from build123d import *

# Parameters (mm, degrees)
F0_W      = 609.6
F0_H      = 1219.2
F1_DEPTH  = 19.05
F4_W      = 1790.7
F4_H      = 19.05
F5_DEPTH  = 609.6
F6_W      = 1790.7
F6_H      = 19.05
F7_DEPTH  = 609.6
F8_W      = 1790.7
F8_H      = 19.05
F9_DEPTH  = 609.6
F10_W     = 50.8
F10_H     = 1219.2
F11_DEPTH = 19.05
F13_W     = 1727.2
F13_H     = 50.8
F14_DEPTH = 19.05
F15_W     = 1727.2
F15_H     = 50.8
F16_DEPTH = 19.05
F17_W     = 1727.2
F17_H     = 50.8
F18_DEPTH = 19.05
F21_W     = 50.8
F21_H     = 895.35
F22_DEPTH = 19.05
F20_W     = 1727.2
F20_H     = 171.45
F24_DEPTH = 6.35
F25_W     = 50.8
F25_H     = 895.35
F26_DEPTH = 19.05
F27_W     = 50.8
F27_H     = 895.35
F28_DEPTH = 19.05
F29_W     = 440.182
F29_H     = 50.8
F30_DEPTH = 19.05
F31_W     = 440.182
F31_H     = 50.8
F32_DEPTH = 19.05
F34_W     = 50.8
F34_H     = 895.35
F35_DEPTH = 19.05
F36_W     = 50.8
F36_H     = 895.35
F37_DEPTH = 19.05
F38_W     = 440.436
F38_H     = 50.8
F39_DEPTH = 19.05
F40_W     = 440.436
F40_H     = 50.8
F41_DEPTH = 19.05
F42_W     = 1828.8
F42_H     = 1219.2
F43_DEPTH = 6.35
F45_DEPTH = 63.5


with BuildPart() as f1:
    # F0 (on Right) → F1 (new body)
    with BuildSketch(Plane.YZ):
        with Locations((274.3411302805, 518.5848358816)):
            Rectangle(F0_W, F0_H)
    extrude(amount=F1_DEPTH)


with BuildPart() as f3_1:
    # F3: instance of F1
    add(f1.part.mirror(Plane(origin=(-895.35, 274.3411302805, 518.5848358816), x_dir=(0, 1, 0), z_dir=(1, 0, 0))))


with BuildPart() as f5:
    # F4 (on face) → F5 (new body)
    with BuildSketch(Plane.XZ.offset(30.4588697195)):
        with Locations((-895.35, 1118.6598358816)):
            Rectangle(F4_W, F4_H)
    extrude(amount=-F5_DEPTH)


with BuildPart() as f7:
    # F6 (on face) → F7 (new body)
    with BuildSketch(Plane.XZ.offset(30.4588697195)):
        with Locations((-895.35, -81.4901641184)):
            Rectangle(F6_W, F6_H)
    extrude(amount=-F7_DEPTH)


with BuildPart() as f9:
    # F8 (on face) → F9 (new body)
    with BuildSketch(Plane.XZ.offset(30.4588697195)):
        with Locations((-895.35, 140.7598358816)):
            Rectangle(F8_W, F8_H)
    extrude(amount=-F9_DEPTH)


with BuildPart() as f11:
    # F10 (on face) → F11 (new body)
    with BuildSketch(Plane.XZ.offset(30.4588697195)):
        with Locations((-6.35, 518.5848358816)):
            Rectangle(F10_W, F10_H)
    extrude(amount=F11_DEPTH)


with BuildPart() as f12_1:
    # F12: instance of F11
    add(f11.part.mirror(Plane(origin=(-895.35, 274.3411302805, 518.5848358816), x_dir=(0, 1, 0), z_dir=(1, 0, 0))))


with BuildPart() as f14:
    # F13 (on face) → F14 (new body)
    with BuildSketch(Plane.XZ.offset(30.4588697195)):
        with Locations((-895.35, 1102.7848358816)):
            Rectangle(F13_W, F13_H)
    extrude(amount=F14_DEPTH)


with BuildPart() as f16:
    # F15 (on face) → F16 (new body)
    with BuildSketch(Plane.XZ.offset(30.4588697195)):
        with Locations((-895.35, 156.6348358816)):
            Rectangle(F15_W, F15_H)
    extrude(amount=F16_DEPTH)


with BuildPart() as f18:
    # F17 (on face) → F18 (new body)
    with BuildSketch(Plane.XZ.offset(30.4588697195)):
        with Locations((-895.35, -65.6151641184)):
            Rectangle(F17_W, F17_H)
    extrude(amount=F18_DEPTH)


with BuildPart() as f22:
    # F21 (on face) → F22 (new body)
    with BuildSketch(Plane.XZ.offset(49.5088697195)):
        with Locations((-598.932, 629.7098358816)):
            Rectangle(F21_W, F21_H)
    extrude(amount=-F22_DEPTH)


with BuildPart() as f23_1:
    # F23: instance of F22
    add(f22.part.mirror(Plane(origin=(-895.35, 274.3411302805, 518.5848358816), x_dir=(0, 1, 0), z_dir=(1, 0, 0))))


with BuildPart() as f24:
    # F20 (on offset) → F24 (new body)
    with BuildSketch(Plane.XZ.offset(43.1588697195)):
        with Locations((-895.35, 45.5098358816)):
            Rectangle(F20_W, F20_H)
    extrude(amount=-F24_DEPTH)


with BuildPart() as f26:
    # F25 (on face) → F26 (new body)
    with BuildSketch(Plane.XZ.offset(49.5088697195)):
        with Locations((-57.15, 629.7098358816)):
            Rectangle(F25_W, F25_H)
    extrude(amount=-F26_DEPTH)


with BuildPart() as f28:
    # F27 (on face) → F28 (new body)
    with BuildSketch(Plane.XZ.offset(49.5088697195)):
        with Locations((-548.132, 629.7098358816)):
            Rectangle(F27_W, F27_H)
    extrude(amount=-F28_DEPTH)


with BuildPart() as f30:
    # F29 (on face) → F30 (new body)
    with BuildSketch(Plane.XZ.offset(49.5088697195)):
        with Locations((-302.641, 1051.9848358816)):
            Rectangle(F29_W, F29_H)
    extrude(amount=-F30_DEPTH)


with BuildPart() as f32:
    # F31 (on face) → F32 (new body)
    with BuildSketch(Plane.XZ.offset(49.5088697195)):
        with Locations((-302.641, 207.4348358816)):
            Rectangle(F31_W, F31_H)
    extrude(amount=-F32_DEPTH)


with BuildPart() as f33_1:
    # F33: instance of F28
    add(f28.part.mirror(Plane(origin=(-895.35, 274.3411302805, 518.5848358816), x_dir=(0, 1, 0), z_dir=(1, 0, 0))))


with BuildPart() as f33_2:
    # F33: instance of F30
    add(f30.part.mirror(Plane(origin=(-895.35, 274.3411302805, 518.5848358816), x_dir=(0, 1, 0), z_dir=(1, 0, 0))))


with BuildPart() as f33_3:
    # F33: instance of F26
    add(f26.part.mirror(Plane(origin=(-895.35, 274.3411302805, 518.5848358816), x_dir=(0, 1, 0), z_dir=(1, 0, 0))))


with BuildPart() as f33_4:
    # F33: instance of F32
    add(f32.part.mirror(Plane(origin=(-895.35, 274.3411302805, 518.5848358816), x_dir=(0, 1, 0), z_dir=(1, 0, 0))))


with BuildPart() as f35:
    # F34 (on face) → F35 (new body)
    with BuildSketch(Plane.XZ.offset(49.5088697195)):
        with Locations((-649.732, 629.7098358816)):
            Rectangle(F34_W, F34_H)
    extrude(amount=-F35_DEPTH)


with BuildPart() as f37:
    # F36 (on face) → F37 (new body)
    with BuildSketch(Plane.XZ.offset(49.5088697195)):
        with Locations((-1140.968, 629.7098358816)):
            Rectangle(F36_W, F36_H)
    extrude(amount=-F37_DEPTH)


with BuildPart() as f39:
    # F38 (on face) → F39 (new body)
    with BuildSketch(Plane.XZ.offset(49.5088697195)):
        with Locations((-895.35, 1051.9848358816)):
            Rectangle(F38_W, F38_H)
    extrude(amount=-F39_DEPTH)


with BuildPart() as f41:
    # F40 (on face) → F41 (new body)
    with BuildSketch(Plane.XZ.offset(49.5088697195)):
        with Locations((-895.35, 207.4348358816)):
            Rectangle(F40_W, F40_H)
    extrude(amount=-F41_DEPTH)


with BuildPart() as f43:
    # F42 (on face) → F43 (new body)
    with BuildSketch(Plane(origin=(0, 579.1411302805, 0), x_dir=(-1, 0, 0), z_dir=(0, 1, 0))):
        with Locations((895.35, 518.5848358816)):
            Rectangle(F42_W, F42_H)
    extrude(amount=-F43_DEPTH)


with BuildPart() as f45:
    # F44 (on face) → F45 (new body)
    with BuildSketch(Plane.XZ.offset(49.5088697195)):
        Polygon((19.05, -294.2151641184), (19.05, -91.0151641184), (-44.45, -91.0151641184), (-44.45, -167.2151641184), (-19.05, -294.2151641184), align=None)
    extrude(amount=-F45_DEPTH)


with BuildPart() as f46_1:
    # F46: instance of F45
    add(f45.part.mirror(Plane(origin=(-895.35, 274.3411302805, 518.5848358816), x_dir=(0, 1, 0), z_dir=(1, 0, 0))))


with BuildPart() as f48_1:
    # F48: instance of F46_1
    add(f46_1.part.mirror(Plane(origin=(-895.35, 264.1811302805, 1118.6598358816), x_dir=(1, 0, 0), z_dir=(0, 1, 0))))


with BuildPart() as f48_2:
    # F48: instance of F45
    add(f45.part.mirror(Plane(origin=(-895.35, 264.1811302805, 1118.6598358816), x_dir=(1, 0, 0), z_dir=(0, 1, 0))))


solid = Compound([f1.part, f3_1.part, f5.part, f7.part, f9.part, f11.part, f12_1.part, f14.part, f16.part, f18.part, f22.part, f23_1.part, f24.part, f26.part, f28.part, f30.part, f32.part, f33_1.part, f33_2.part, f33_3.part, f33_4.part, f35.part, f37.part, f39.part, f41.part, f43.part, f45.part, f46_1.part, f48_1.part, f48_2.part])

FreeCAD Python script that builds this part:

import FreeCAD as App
import Part
import Sketcher
Q = App.Units.Quantity

doc = App.newDocument("Part")
body = doc.addObject("PartDesign::Body", "Body")

sketch1 = body.newObject("Sketcher::SketchObject", "Sketch")
sketch1.AttachmentSupport = (doc.getObject("YZ_Plane"), [""])
sketch1.MapMode = "FlatFace"
sketch1.addGeometry([
    Part.LineSegment(App.Vector(-30, 1128, 0), App.Vector(-30, -91, 0)),
    Part.LineSegment(App.Vector(-30, -91, 0), App.Vector(579, -91, 0)),
    Part.LineSegment(App.Vector(579, -91, 0), App.Vector(579, 1128, 0)),
    Part.LineSegment(App.Vector(579, 1128, 0), App.Vector(-30, 1128, 0)),
], False)
sketch1.addConstraint([
    Sketcher.Constraint("Coincident", 0, 2, 1, 1),
    Sketcher.Constraint("Coincident", 1, 2, 2, 1),
    Sketcher.Constraint("Coincident", 2, 2, 3, 1),
    Sketcher.Constraint("Coincident", 3, 2, 0, 1),
    Sketcher.Constraint("Vertical", 0),
    Sketcher.Constraint("Horizontal", 1),
    Sketcher.Constraint("Vertical", 2),
    Sketcher.Constraint("Horizontal", 3),
    Sketcher.Constraint("DistanceX", 1, 1, 1, 2, Q("24 in")),
    Sketcher.Constraint("DistanceY", 0, 2, 0, 1, Q("48 in")),
    Sketcher.Constraint("DistanceX", 0, 2, -1, 1, 30.45887),
    Sketcher.Constraint("DistanceY", 0, 2, -1, 1, 91.015164),
])
pad1 = body.newObject("PartDesign::Pad", "Pad")
pad1.Profile = sketch1
pad1.Length = Q("0.75 in")
body2 = doc.addObject("PartDesign::Body", "Body001")
doc.recompute()

mirroring = doc.addObject("Part::Mirroring", "Mirroring")
mirroring.Source = body
mirroring.Base = App.Vector(-895.35, 274.34113, 518.584836)
mirroring.Normal = App.Vector(1, 0, 0)
body2.BaseFeature = mirroring
doc.recompute()
body3 = doc.addObject("PartDesign::Body", "Body002")

sketch2 = body3.newObject("Sketcher::SketchObject", "Sketch001")
sketch2.AttachmentSupport = (doc.getObject("XZ_Plane002"), [""])
sketch2.MapMode = "FlatFace"
sketch2.AttachmentOffset = App.Placement(App.Vector(0, 0, 30.45887), App.Rotation())
sketch2.addGeometry([
    Part.LineSegment(App.Vector(-1791, 1128, 0), App.Vector(-1791, 1109, 0)),
    Part.LineSegment(App.Vector(-1791, 1109, 0), App.Vector(0, 1109, 0)),
    Part.LineSegment(App.Vector(0, 1109, 0), App.Vector(0, 1128, 0)),
    Part.LineSegment(App.Vector(0, 1128, 0), App.Vector(-1791, 1128, 0)),
], False)
sketch2.addConstraint([
    Sketcher.Constraint("Coincident", 0, 2, 1, 1),
    Sketcher.Constraint("Coincident", 1, 2, 2, 1),
    Sketcher.Constraint("Coincident", 2, 2, 3, 1),
    Sketcher.Constraint("Coincident", 3, 2, 0, 1),
    Sketcher.Constraint("Vertical", 0),
    Sketcher.Constraint("Horizontal", 1),
    Sketcher.Constraint("Vertical", 2),
    Sketcher.Constraint("Horizontal", 3),
    Sketcher.Constraint("PointOnObject", 1, 2, -2),
    Sketcher.Constraint("DistanceX", 1, 1, 1, 2, Q("70.5 in")),
    Sketcher.Constraint("DistanceY", 0, 2, 0, 1, Q("0.75 in")),
    Sketcher.Constraint("DistanceY", -1, 1, 0, 2, 1109.134836),
])
pad2 = body3.newObject("PartDesign::Pad", "Pad001")
pad2.Profile = sketch2
pad2.Length = Q("24 in")
pad2.Reversed = True
body4 = doc.addObject("PartDesign::Body", "Body003")

sketch3 = body4.newObject("Sketcher::SketchObject", "Sketch002")
sketch3.AttachmentSupport = (doc.getObject("XZ_Plane003"), [""])
sketch3.MapMode = "FlatFace"
sketch3.AttachmentOffset = App.Placement(App.Vector(0, 0, 30.45887), App.Rotation())
sketch3.addGeometry([
    Part.LineSegment(App.Vector(-1791, -72, 0), App.Vector(-1791, -91, 0)),
    Part.LineSegment(App.Vector(-1791, -91, 0), App.Vector(0, -91, 0)),
    Part.LineSegment(App.Vector(0, -91, 0), App.Vector(0, -72, 0)),
    Part.LineSegment(App.Vector(0, -72, 0), App.Vector(-1791, -72, 0)),
], False)
sketch3.addConstraint([
    Sketcher.Constraint("Coincident", 0, 2, 1, 1),
    Sketcher.Constraint("Coincident", 1, 2, 2, 1),
    Sketcher.Constraint("Coincident", 2, 2, 3, 1),
    Sketcher.Constraint("Coincident", 3, 2, 0, 1),
    Sketcher.Constraint("Vertical", 0),
    Sketcher.Constraint("Horizontal", 1),
    Sketcher.Constraint("Vertical", 2),
    Sketcher.Constraint("Horizontal", 3),
    Sketcher.Constraint("PointOnObject", 1, 2, -2),
    Sketcher.Constraint("DistanceX", 1, 1, 1, 2, Q("70.5 in")),
    Sketcher.Constraint("DistanceY", 0, 2, 0, 1, Q("0.75 in")),
    Sketcher.Constraint("DistanceY", 0, 2, -1, 1, 91.015164),
])
pad3 = body4.newObject("PartDesign::Pad", "Pad002")
pad3.Profile = sketch3
pad3.Length = Q("24 in")
pad3.Reversed = True
body5 = doc.addObject("PartDesign::Body", "Body004")

sketch4 = body5.newObject("Sketcher::SketchObject", "Sketch003")
sketch4.AttachmentSupport = (doc.getObject("XZ_Plane004"), [""])
sketch4.MapMode = "FlatFace"
sketch4.AttachmentOffset = App.Placement(App.Vector(0, 0, 30.45887), App.Rotation())
sketch4.addGeometry([
    Part.LineSegment(App.Vector(-1791, 150, 0), App.Vector(-1791, 131, 0)),
    Part.LineSegment(App.Vector(-1791, 131, 0), App.Vector(0, 131, 0)),
    Part.LineSegment(App.Vector(0, 131, 0), App.Vector(0, 150, 0)),
    Part.LineSegment(App.Vector(0, 150, 0), App.Vector(-1791, 150, 0)),
], False)
sketch4.addConstraint([
    Sketcher.Constraint("Coincident", 0, 2, 1, 1),
    Sketcher.Constraint("Coincident", 1, 2, 2, 1),
    Sketcher.Constraint("Coincident", 2, 2, 3, 1),
    Sketcher.Constraint("Coincident", 3, 2, 0, 1),
    Sketcher.Constraint("Vertical", 0),
    Sketcher.Constraint("Horizontal", 1),
    Sketcher.Constraint("Vertical", 2),
    Sketcher.Constraint("Horizontal", 3),
    Sketcher.Constraint("PointOnObject", 1, 2, -2),
    Sketcher.Constraint("DistanceX", 1, 1, 1, 2, Q("70.5 in")),
    Sketcher.Constraint("DistanceY", 0, 2, 0, 1, Q("0.75 in")),
    Sketcher.Constraint("DistanceY", -1, 1, 0, 2, 131.234836),
])
pad4 = body5.newObject("PartDesign::Pad", "Pad003")
pad4.Profile = sketch4
pad4.Length = Q("24 in")
pad4.Reversed = True
body6 = doc.addObject("PartDesign::Body", "Body005")

sketch5 = body6.newObject("Sketcher::SketchObject", "Sketch004")
sketch5.AttachmentSupport = (doc.getObject("XZ_Plane005"), [""])
sketch5.MapMode = "FlatFace"
sketch5.AttachmentOffset = App.Placement(App.Vector(0, 0, 30.45887), App.Rotation())
sketch5.addGeometry([
    Part.LineSegment(App.Vector(-32, 1128, 0), App.Vector(-32, -91, 0)),
    Part.LineSegment(App.Vector(-32, -91, 0), App.Vector(19, -91, 0)),
    Part.LineSegment(App.Vector(19, -91, 0), App.Vector(19, 1128, 0)),
    Part.LineSegment(App.Vector(19, 1128, 0), App.Vector(-32, 1128, 0)),
], False)
sketch5.addConstraint([
    Sketcher.Constraint("Coincident", 0, 2, 1, 1),
    Sketcher.Constraint("Coincident", 1, 2, 2, 1),
    Sketcher.Constraint("Coincident", 2, 2, 3, 1),
    Sketcher.Constraint("Coincident", 3, 2, 0, 1),
    Sketcher.Constraint("Vertical", 0),
    Sketcher.Constraint("Horizontal", 1),
    Sketcher.Constraint("Vertical", 2),
    Sketcher.Constraint("Horizontal", 3),
    Sketcher.Constraint("DistanceX", 1, 1, 1, 2, Q("2 in")),
    Sketcher.Constraint("DistanceY", 0, 2, 0, 1, Q("48 in")),
    Sketcher.Constraint("DistanceX", 0, 2, -1, 1, Q("1.25 in")),
    Sketcher.Constraint("DistanceY", 0, 2, -1, 1, 91.015164),
])
pad5 = body6.newObject("PartDesign::Pad", "Pad004")
pad5.Profile = sketch5
pad5.Length = Q("0.75 in")
body7 = doc.addObject("PartDesign::Body", "Body006")
doc.recompute()

mirroring2 = doc.addObject("Part::Mirroring", "Mirroring001")
mirroring2.Source = body6
mirroring2.Base = App.Vector(-895.35, 274.34113, 518.584836)
mirroring2.Normal = App.Vector(1, 0, 0)
body7.BaseFeature = mirroring2
doc.recompute()
body8 = doc.addObject("PartDesign::Body", "Body007")

sketch6 = body8.newObject("Sketcher::SketchObject", "Sketch005")
sketch6.AttachmentSupport = (doc.getObject("XZ_Plane007"), [""])
sketch6.MapMode = "FlatFace"
sketch6.AttachmentOffset = App.Placement(App.Vector(0, 0, 30.45887), App.Rotation())
sketch6.addGeometry([
    Part.LineSegment(App.Vector(-1759, 1128, 0), App.Vector(-1759, 1077, 0)),
    Part.LineSegment(App.Vector(-1759, 1077, 0), App.Vector(-32, 1077, 0)),
    Part.LineSegment(App.Vector(-32, 1077, 0), App.Vector(-32, 1128, 0)),
    Part.LineSegment(App.Vector(-32, 1128, 0), App.Vector(-1759, 1128, 0)),
], False)
sketch6.addConstraint([
    Sketcher.Constraint("Coincident", 0, 2, 1, 1),
    Sketcher.Constraint("Coincident", 1, 2, 2, 1),
    Sketcher.Constraint("Coincident", 2, 2, 3, 1),
    Sketcher.Constraint("Coincident", 3, 2, 0, 1),
    Sketcher.Constraint("Vertical", 0),
    Sketcher.Constraint("Horizontal", 1),
    Sketcher.Constraint("Vertical", 2),
    Sketcher.Constraint("Horizontal", 3),
    Sketcher.Constraint("DistanceX", 1, 1, 1, 2, Q("68 in")),
    Sketcher.Constraint("DistanceY", 0, 2, 0, 1, Q("2 in")),
    Sketcher.Constraint("DistanceX", 0, 2, -1, 1, Q("69.25 in")),
    Sketcher.Constraint("DistanceY", -1, 1, 0, 2, 1077.384836),
])
pad6 = body8.newObject("PartDesign::Pad", "Pad005")
pad6.Profile = sketch6
pad6.Length = Q("0.75 in")
body9 = doc.addObject("PartDesign::Body", "Body008")

sketch7 = body9.newObject("Sketcher::SketchObject", "Sketch006")
sketch7.AttachmentSupport = (doc.getObject("XZ_Plane008"), [""])
sketch7.MapMode = "FlatFace"
sketch7.AttachmentOffset = App.Placement(App.Vector(0, 0, 30.45887), App.Rotation())
sketch7.addGeometry([
    Part.LineSegment(App.Vector(-1759, 182, 0), App.Vector(-1759, 131, 0)),
    Part.LineSegment(App.Vector(-1759, 131, 0), App.Vector(-32, 131, 0)),
    Part.LineSegment(App.Vector(-32, 131, 0), App.Vector(-32, 182, 0)),
    Part.LineSegment(App.Vector(-32, 182, 0), App.Vector(-1759, 182, 0)),
], False)
sketch7.addConstraint([
    Sketcher.Constraint("Coincident", 0, 2, 1, 1),
    Sketcher.Constraint("Coincident", 1, 2, 2, 1),
    Sketcher.Constraint("Coincident", 2, 2, 3, 1),
    Sketcher.Constraint("Coincident", 3, 2, 0, 1),
    Sketcher.Constraint("Vertical", 0),
    Sketcher.Constraint("Horizontal", 1),
    Sketcher.Constraint("Vertical", 2),
    Sketcher.Constraint("Horizontal", 3),
    Sketcher.Constraint("DistanceX", 1, 1, 1, 2, Q("68 in")),
    Sketcher.Constraint("DistanceY", 0, 2, 0, 1, Q("2 in")),
    Sketcher.Constraint("DistanceX", 0, 2, -1, 1, Q("69.25 in")),
    Sketcher.Constraint("DistanceY", -1, 1, 0, 2, 131.234836),
])
pad7 = body9.newObject("PartDesign::Pad", "Pad006")
pad7.Profile = sketch7
pad7.Length = Q("0.75 in")
body10 = doc.addObject("PartDesign::Body", "Body009")

sketch8 = body10.newObject("Sketcher::SketchObject", "Sketch007")
sketch8.AttachmentSupport = (doc.getObject("XZ_Plane009"), [""])
sketch8.MapMode = "FlatFace"
sketch8.AttachmentOffset = App.Placement(App.Vector(0, 0, 30.45887), App.Rotation())
sketch8.addGeometry([
    Part.LineSegment(App.Vector(-1759, -40, 0), App.Vector(-1759, -91, 0)),
    Part.LineSegment(App.Vector(-1759, -91, 0), App.Vector(-32, -91, 0)),
    Part.LineSegment(App.Vector(-32, -91, 0), App.Vector(-32, -40, 0)),
    Part.LineSegment(App.Vector(-32, -40, 0), App.Vector(-1759, -40, 0)),
], False)
sketch8.addConstraint([
    Sketcher.Constraint("Coincident", 0, 2, 1, 1),
    Sketcher.Constraint("Coincident", 1, 2, 2, 1),
    Sketcher.Constraint("Coincident", 2, 2, 3, 1),
    Sketcher.Constraint("Coincident", 3, 2, 0, 1),
    Sketcher.Constraint("Vertical", 0),
    Sketcher.Constraint("Horizontal", 1),
    Sketcher.Constraint("Vertical", 2),
    Sketcher.Constraint("Horizontal", 3),
    Sketcher.Constraint("DistanceX", 1, 1, 1, 2, Q("68 in")),
    Sketcher.Constraint("DistanceY", 0, 2, 0, 1, Q("2 in")),
    Sketcher.Constraint("DistanceX", 0, 2, -1, 1, Q("69.25 in")),
    Sketcher.Constraint("DistanceY", 0, 2, -1, 1, 91.015164),
])
pad8 = body10.newObject("PartDesign::Pad", "Pad007")
pad8.Profile = sketch8
pad8.Length = Q("0.75 in")
body11 = doc.addObject("PartDesign::Body", "Body010")

sketch9 = body11.newObject("Sketcher::SketchObject", "Sketch008")
sketch9.AttachmentSupport = (doc.getObject("XZ_Plane010"), [""])
sketch9.MapMode = "FlatFace"
sketch9.AttachmentOffset = App.Placement(App.Vector(0, 0, 49.50887), App.Rotation())
sketch9.addGeometry([
    Part.LineSegment(App.Vector(-624, 1077, 0), App.Vector(-624, 182, 0)),
    Part.LineSegment(App.Vector(-624, 182, 0), App.Vector(-574, 182, 0)),
    Part.LineSegment(App.Vector(-574, 182, 0), App.Vector(-574, 1077, 0)),
    Part.LineSegment(App.Vector(-574, 1077, 0), App.Vector(-624, 1077, 0)),
], False)
sketch9.addConstraint([
    Sketcher.Constraint("Coincident", 0, 2, 1, 1),
    Sketcher.Constraint("Coincident", 1, 2, 2, 1),
    Sketcher.Constraint("Coincident", 2, 2, 3, 1),
    Sketcher.Constraint("Coincident", 3, 2, 0, 1),
    Sketcher.Constraint("Vertical", 0),
    Sketcher.Constraint("Horizontal", 1),
    Sketcher.Constraint("Vertical", 2),
    Sketcher.Constraint("Horizontal", 3),
    Sketcher.Constraint("DistanceX", 1, 1, 1, 2, Q("2 in")),
    Sketcher.Constraint("DistanceY", 0, 2, 0, 1, Q("35.25 in")),
    Sketcher.Constraint("DistanceX", 0, 2, -1, 1, Q("24.58 in")),
    Sketcher.Constraint("DistanceY", -1, 1, 0, 2, 182.034836),
])
pad9 = body11.newObject("PartDesign::Pad", "Pad008")
pad9.Profile = sketch9
pad9.Length = Q("0.75 in")
pad9.Reversed = True
body12 = doc.addObject("PartDesign::Body", "Body011")
doc.recompute()

mirroring3 = doc.addObject("Part::Mirroring", "Mirroring002")
mirroring3.Source = body11
mirroring3.Base = App.Vector(-895.35, 274.34113, 518.584836)
mirroring3.Normal = App.Vector(1, 0, 0)
body12.BaseFeature = mirroring3
doc.recompute()
body13 = doc.addObject("PartDesign::Body", "Body012")

sketch10 = body13.newObject("Sketcher::SketchObject", "Sketch009")
sketch10.AttachmentSupport = (doc.getObject("XZ_Plane012"), [""])
sketch10.MapMode = "FlatFace"
sketch10.AttachmentOffset = App.Placement(App.Vector(0, 0, 43.15887), App.Rotation())
sketch10.addGeometry([
    Part.LineSegment(App.Vector(-1759, 131, 0), App.Vector(-1759, -40, 0)),
    Part.LineSegment(App.Vector(-1759, -40, 0), App.Vector(-32, -40, 0)),
    Part.LineSegment(App.Vector(-32, -40, 0), App.Vector(-32, 131, 0)),
    Part.LineSegment(App.Vector(-32, 131, 0), App.Vector(-1759, 131, 0)),
], False)
sketch10.addConstraint([
    Sketcher.Constraint("Coincident", 0, 2, 1, 1),
    Sketcher.Constraint("Coincident", 1, 2, 2, 1),
    Sketcher.Constraint("Coincident", 2, 2, 3, 1),
    Sketcher.Constraint("Coincident", 3, 2, 0, 1),
    Sketcher.Constraint("Vertical", 0),
    Sketcher.Constraint("Horizontal", 1),
    Sketcher.Constraint("Vertical", 2),
    Sketcher.Constraint("Horizontal", 3),
    Sketcher.Constraint("DistanceX", 1, 1, 1, 2, Q("68 in")),
    Sketcher.Constraint("DistanceY", 0, 2, 0, 1, Q("6.75 in")),
    Sketcher.Constraint("DistanceX", 0, 2, -1, 1, Q("69.25 in")),
    Sketcher.Constraint("DistanceY", 0, 2, -1, 1, 40.215164),
])
pad10 = body13.newObject("PartDesign::Pad", "Pad009")
pad10.Profile = sketch10
pad10.Length = Q("0.25 in")
pad10.Reversed = True
body14 = doc.addObject("PartDesign::Body", "Body013")

sketch11 = body14.newObject("Sketcher::SketchObject", "Sketch010")
sketch11.AttachmentSupport = (doc.getObject("XZ_Plane013"), [""])
sketch11.MapMode = "FlatFace"
sketch11.AttachmentOffset = App.Placement(App.Vector(0, 0, 49.50887), App.Rotation())
sketch11.addGeometry([
    Part.LineSegment(App.Vector(-83, 1077, 0), App.Vector(-83, 182, 0)),
    Part.LineSegment(App.Vector(-83, 182, 0), App.Vector(-32, 182, 0)),
    Part.LineSegment(App.Vector(-32, 182, 0), App.Vector(-32, 1077, 0)),
    Part.LineSegment(App.Vector(-32, 1077, 0), App.Vector(-83, 1077, 0)),
], False)
sketch11.addConstraint([
    Sketcher.Constraint("Coincident", 0, 2, 1, 1),
    Sketcher.Constraint("Coincident", 1, 2, 2, 1),
    Sketcher.Constraint("Coincident", 2, 2, 3, 1),
    Sketcher.Constraint("Coincident", 3, 2, 0, 1),
    Sketcher.Constraint("Vertical", 0),
    Sketcher.Constraint("Horizontal", 1),
    Sketcher.Constraint("Vertical", 2),
    Sketcher.Constraint("Horizontal", 3),
    Sketcher.Constraint("DistanceX", 1, 1, 1, 2, Q("2 in")),
    Sketcher.Constraint("DistanceY", 0, 2, 0, 1, Q("35.25 in")),
    Sketcher.Constraint("DistanceX", 0, 2, -1, 1, Q("3.25 in")),
    Sketcher.Constraint("DistanceY", -1, 1, 0, 2, 182.034836),
])
pad11 = body14.newObject("PartDesign::Pad", "Pad010")
pad11.Profile = sketch11
pad11.Length = Q("0.75 in")
pad11.Reversed = True
body15 = doc.addObject("PartDesign::Body", "Body014")

sketch12 = body15.newObject("Sketcher::SketchObject", "Sketch011")
sketch12.AttachmentSupport = (doc.getObject("XZ_Plane014"), [""])
sketch12.MapMode = "FlatFace"
sketch12.AttachmentOffset = App.Placement(App.Vector(0, 0, 49.50887), App.Rotation())
sketch12.addGeometry([
    Part.LineSegment(App.Vector(-574, 1077, 0), App.Vector(-574, 182, 0)),
    Part.LineSegment(App.Vector(-574, 182, 0), App.Vector(-523, 182, 0)),
    Part.LineSegment(App.Vector(-523, 182, 0), App.Vector(-523, 1077, 0)),
    Part.LineSegment(App.Vector(-523, 1077, 0), App.Vector(-574, 1077, 0)),
], False)
sketch12.addConstraint([
    Sketcher.Constraint("Coincident", 0, 2, 1, 1),
    Sketcher.Constraint("Coincident", 1, 2, 2, 1),
    Sketcher.Constraint("Coincident", 2, 2, 3, 1),
    Sketcher.Constraint("Coincident", 3, 2, 0, 1),
    Sketcher.Constraint("Vertical", 0),
    Sketcher.Constraint("Horizontal", 1),
    Sketcher.Constraint("Vertical", 2),
    Sketcher.Constraint("Horizontal", 3),
    Sketcher.Constraint("DistanceX", 1, 1, 1, 2, Q("2 in")),
    Sketcher.Constraint("DistanceY", 0, 2, 0, 1, Q("35.25 in")),
    Sketcher.Constraint("DistanceX", 0, 2, -1, 1, Q("22.58 in")),
    Sketcher.Constraint("DistanceY", -1, 1, 0, 2, 182.034836),
])
pad12 = body15.newObject("PartDesign::Pad", "Pad011")
pad12.Profile = sketch12
pad12.Length = Q("0.75 in")
pad12.Reversed = True
body16 = doc.addObject("PartDesign::Body", "Body015")

sketch13 = body16.newObject("Sketcher::SketchObject", "Sketch012")
sketch13.AttachmentSupport = (doc.getObject("XZ_Plane015"), [""])
sketch13.MapMode = "FlatFace"
sketch13.AttachmentOffset = App.Placement(App.Vector(0, 0, 49.50887), App.Rotation())
sketch13.addGeometry([
    Part.LineSegment(App.Vector(-523, 1077, 0), App.Vector(-523, 1027, 0)),
    Part.LineSegment(App.Vector(-523, 1027, 0), App.Vector(-83, 1027, 0)),
    Part.LineSegment(App.Vector(-83, 1027, 0), App.Vector(-83, 1077, 0)),
    Part.LineSegment(App.Vector(-83, 1077, 0), App.Vector(-523, 1077, 0)),
], False)
sketch13.addConstraint([
    Sketcher.Constraint("Coincident", 0, 2, 1, 1),
    Sketcher.Constraint("Coincident", 1, 2, 2, 1),
    Sketcher.Constraint("Coincident", 2, 2, 3, 1),
    Sketcher.Constraint("Coincident", 3, 2, 0, 1),
    Sketcher.Constraint("Vertical", 0),
    Sketcher.Constraint("Horizontal", 1),
    Sketcher.Constraint("Vertical", 2),
    Sketcher.Constraint("Horizontal", 3),
    Sketcher.Constraint("DistanceY", 0, 2, 0, 1, Q("2 in")),
    Sketcher.Constraint("DistanceX", 1, 1, 1, 2, Q("17.33 in")),
    Sketcher.Constraint("DistanceX", 0, 2, -1, 1, Q("20.58 in")),
    Sketcher.Constraint("DistanceY", -1, 1, 0, 2, 1026.584836),
])
pad13 = body16.newObject("PartDesign::Pad", "Pad012")
pad13.Profile = sketch13
pad13.Length = Q("0.75 in")
pad13.Reversed = True
body17 = doc.addObject("PartDesign::Body", "Body016")

sketch14 = body17.newObject("Sketcher::SketchObject", "Sketch013")
sketch14.AttachmentSupport = (doc.getObject("XZ_Plane016"), [""])
sketch14.MapMode = "FlatFace"
sketch14.AttachmentOffset = App.Placement(App.Vector(0, 0, 49.50887), App.Rotation())
sketch14.addGeometry([
    Part.LineSegment(App.Vector(-523, 233, 0), App.Vector(-523, 182, 0)),
    Part.LineSegment(App.Vector(-523, 182, 0), App.Vector(-83, 182, 0)),
    Part.LineSegment(App.Vector(-83, 182, 0), App.Vector(-83, 233, 0)),
    Part.LineSegment(App.Vector(-83, 233, 0), App.Vector(-523, 233, 0)),
], False)
sketch14.addConstraint([
    Sketcher.Constraint("Coincident", 0, 2, 1, 1),
    Sketcher.Constraint("Coincident", 1, 2, 2, 1),
    Sketcher.Constraint("Coincident", 2, 2, 3, 1),
    Sketcher.Constraint("Coincident", 3, 2, 0, 1),
    Sketcher.Constraint("Vertical", 0),
    Sketcher.Constraint("Horizontal", 1),
    Sketcher.Constraint("Vertical", 2),
    Sketcher.Constraint("Horizontal", 3),
    Sketcher.Constraint("DistanceY", 0, 2, 0, 1, Q("2 in")),
    Sketcher.Constraint("DistanceX", 1, 1, 1, 2, Q("17.33 in")),
    Sketcher.Constraint("DistanceX", 0, 2, -1, 1, Q("20.58 in")),
    Sketcher.Constraint("DistanceY", -1, 1, 0, 2, 182.034836),
])
pad14 = body17.newObject("PartDesign::Pad", "Pad013")
pad14.Profile = sketch14
pad14.Length = Q("0.75 in")
pad14.Reversed = True
body18 = doc.addObject("PartDesign::Body", "Body017")
doc.recompute()

mirroring4 = doc.addObject("Part::Mirroring", "Mirroring003")
mirroring4.Source = body15
mirroring4.Base = App.Vector(-895.35, 274.34113, 518.584836)
mirroring4.Normal = App.Vector(1, 0, 0)
body18.BaseFeature = mirroring4
doc.recompute()
body19 = doc.addObject("PartDesign::Body", "Body018")
doc.recompute()

mirroring5 = doc.addObject("Part::Mirroring", "Mirroring004")
mirroring5.Source = body16
mirroring5.Base = App.Vector(-895.35, 274.34113, 518.584836)
mirroring5.Normal = App.Vector(1, 0, 0)
body19.BaseFeature = mirroring5
doc.recompute()
body20 = doc.addObject("PartDesign::Body", "Body019")
doc.recompute()

mirroring6 = doc.addObject("Part::Mirroring", "Mirroring005")
mirroring6.Source = body14
mirroring6.Base = App.Vector(-895.35, 274.34113, 518.584836)
mirroring6.Normal = App.Vector(1, 0, 0)
body20.BaseFeature = mirroring6
doc.recompute()
body21 = doc.addObject("PartDesign::Body", "Body020")
doc.recompute()

mirroring7 = doc.addObject("Part::Mirroring", "Mirroring006")
mirroring7.Source = body17
mirroring7.Base = App.Vector(-895.35, 274.34113, 518.584836)
mirroring7.Normal = App.Vector(1, 0, 0)
body21.BaseFeature = mirroring7
doc.recompute()
body22 = doc.addObject("PartDesign::Body", "Body021")

sketch15 = body22.newObject("Sketcher::SketchObject", "Sketch014")
sketch15.AttachmentSupport = (doc.getObject("XZ_Plane021"), [""])
sketch15.MapMode = "FlatFace"
sketch15.AttachmentOffset = App.Placement(App.Vector(0, 0, 49.50887), App.Rotation())
sketch15.addGeometry([
    Part.LineSegment(App.Vector(-675, 1077, 0), App.Vector(-675, 182, 0)),
    Part.LineSegment(App.Vector(-675, 182, 0), App.Vector(-624, 182, 0)),
    Part.LineSegment(App.Vector(-624, 182, 0), App.Vector(-624, 1077, 0)),
    Part.LineSegment(App.Vector(-624, 1077, 0), App.Vector(-675, 1077, 0)),
], False)
sketch15.addConstraint([
    Sketcher.Constraint("Coincident", 0, 2, 1, 1),
    Sketcher.Constraint("Coincident", 1, 2, 2, 1),
    Sketcher.Constraint("Coincident", 2, 2, 3, 1),
    Sketcher.Constraint("Coincident", 3, 2, 0, 1),
    Sketcher.Constraint("Vertical", 0),
    Sketcher.Constraint("Horizontal", 1),
    Sketcher.Constraint("Vertical", 2),
    Sketcher.Constraint("Horizontal", 3),
    Sketcher.Constraint("DistanceX", 1, 1, 1, 2, Q("2 in")),
    Sketcher.Constraint("DistanceY", 0, 2, 0, 1, Q("35.25 in")),
    Sketcher.Constraint("DistanceX", 0, 2, -1, 1, Q("26.58 in")),
    Sketcher.Constraint("DistanceY", -1, 1, 0, 2, 182.034836),
])
pad15 = body22.newObject("PartDesign::Pad", "Pad014")
pad15.Profile = sketch15
pad15.Length = Q("0.75 in")
pad15.Reversed = True
body23 = doc.addObject("PartDesign::Body", "Body022")

sketch16 = body23.newObject("Sketcher::SketchObject", "Sketch015")
sketch16.AttachmentSupport = (doc.getObject("XZ_Plane022"), [""])
sketch16.MapMode = "FlatFace"
sketch16.AttachmentOffset = App.Placement(App.Vector(0, 0, 49.50887), App.Rotation())
sketch16.addGeometry([
    Part.LineSegment(App.Vector(-1166, 1077, 0), App.Vector(-1166, 182, 0)),
    Part.LineSegment(App.Vector(-1166, 182, 0), App.Vector(-1116, 182, 0)),
    Part.LineSegment(App.Vector(-1116, 182, 0), App.Vector(-1116, 1077, 0)),
    Part.LineSegment(App.Vector(-1116, 1077, 0), App.Vector(-1166, 1077, 0)),
], False)
sketch16.addConstraint([
    Sketcher.Constraint("Coincident", 0, 2, 1, 1),
    Sketcher.Constraint("Coincident", 1, 2, 2, 1),
    Sketcher.Constraint("Coincident", 2, 2, 3, 1),
    Sketcher.Constraint("Coincident", 3, 2, 0, 1),
    Sketcher.Constraint("Vertical", 0),
    Sketcher.Constraint("Horizontal", 1),
    Sketcher.Constraint("Vertical", 2),
    Sketcher.Constraint("Horizontal", 3),
    Sketcher.Constraint("DistanceX", 1, 1, 1, 2, Q("2 in")),
    Sketcher.Constraint("DistanceY", 0, 2, 0, 1, Q("35.25 in")),
    Sketcher.Constraint("DistanceX", 0, 2, -1, 1, Q("45.92 in")),
    Sketcher.Constraint("DistanceY", -1, 1, 0, 2, 182.034836),
])
pad16 = body23.newObject("PartDesign::Pad", "Pad015")
pad16.Profile = sketch16
pad16.Length = Q("0.75 in")
pad16.Reversed = True
body24 = doc.addObject("PartDesign::Body", "Body023")

sketch17 = body24.newObject("Sketcher::SketchObject", "Sketch016")
sketch17.AttachmentSupport = (doc.getObject("XZ_Plane023"), [""])
sketch17.MapMode = "FlatFace"
sketch17.AttachmentOffset = App.Placement(App.Vector(0, 0, 49.50887), App.Rotation())
sketch17.addGeometry([
    Part.LineSegment(App.Vector(-1116, 1077, 0), App.Vector(-1116, 1027, 0)),
    Part.LineSegment(App.Vector(-1116, 1027, 0), App.Vector(-675, 1027, 0)),
    Part.LineSegment(App.Vector(-675, 1027, 0), App.Vector(-675, 1077, 0)),
    Part.LineSegment(App.Vector(-675, 1077, 0), App.Vector(-1116, 1077, 0)),
], False)
sketch17.addConstraint([
    Sketcher.Constraint("Coincident", 0, 2, 1, 1),
    Sketcher.Constraint("Coincident", 1, 2, 2, 1),
    Sketcher.Constraint("Coincident", 2, 2, 3, 1),
    Sketcher.Constraint("Coincident", 3, 2, 0, 1),
    Sketcher.Constraint("Vertical", 0),
    Sketcher.Constraint("Horizontal", 1),
    Sketcher.Constraint("Vertical", 2),
    Sketcher.Constraint("Horizontal", 3),
    Sketcher.Constraint("DistanceY", 0, 2, 0, 1, Q("2 in")),
    Sketcher.Constraint("DistanceX", 1, 1, 1, 2, Q("17.34 in")),
    Sketcher.Constraint("DistanceX", 0, 2, -1, 1, Q("43.92 in")),
    Sketcher.Constraint("DistanceY", -1, 1, 0, 2, 1026.584836),
])
pad17 = body24.newObject("PartDesign::Pad", "Pad016")
pad17.Profile = sketch17
pad17.Length = Q("0.75 in")
pad17.Reversed = True
body25 = doc.addObject("PartDesign::Body", "Body024")

sketch18 = body25.newObject("Sketcher::SketchObject", "Sketch017")
sketch18.AttachmentSupport = (doc.getObject("XZ_Plane024"), [""])
sketch18.MapMode = "FlatFace"
sketch18.AttachmentOffset = App.Placement(App.Vector(0, 0, 49.50887), App.Rotation())
sketch18.addGeometry([
    Part.LineSegment(App.Vector(-1116, 233, 0), App.Vector(-1116, 182, 0)),
    Part.LineSegment(App.Vector(-1116, 182, 0), App.Vector(-675, 182, 0)),
    Part.LineSegment(App.Vector(-675, 182, 0), App.Vector(-675, 233, 0)),
    Part.LineSegment(App.Vector(-675, 233, 0), App.Vector(-1116, 233, 0)),
], False)
sketch18.addConstraint([
    Sketcher.Constraint("Coincident", 0, 2, 1, 1),
    Sketcher.Constraint("Coincident", 1, 2, 2, 1),
    Sketcher.Constraint("Coincident", 2, 2, 3, 1),
    Sketcher.Constraint("Coincident", 3, 2, 0, 1),
    Sketcher.Constraint("Vertical", 0),
    Sketcher.Constraint("Horizontal", 1),
    Sketcher.Constraint("Vertical", 2),
    Sketcher.Constraint("Horizontal", 3),
    Sketcher.Constraint("DistanceY", 0, 2, 0, 1, Q("2 in")),
    Sketcher.Constraint("DistanceX", 1, 1, 1, 2, Q("17.34 in")),
    Sketcher.Constraint("DistanceX", 0, 2, -1, 1, Q("43.92 in")),
    Sketcher.Constraint("DistanceY", -1, 1, 0, 2, 182.034836),
])
pad18 = body25.newObject("PartDesign::Pad", "Pad017")
pad18.Profile = sketch18
pad18.Length = Q("0.75 in")
pad18.Reversed = True
body26 = doc.addObject("PartDesign::Body", "Body025")

sketch19 = body26.newObject("Sketcher::SketchObject", "Sketch018")
sketch19.AttachmentSupport = (doc.getObject("XZ_Plane025"), [""])
sketch19.MapMode = "FlatFace"
sketch19.AttachmentOffset = App.Placement(App.Vector(0, 0, -579.14113), App.Rotation())
sketch19.addGeometry([
    Part.LineSegment(App.Vector(19, 1128, 0), App.Vector(19, -91, 0)),
    Part.LineSegment(App.Vector(19, -91, 0), App.Vector(-1810, -91, 0)),
    Part.LineSegment(App.Vector(-1810, -91, 0), App.Vector(-1810, 1128, 0)),
    Part.LineSegment(App.Vector(-1810, 1128, 0), App.Vector(19, 1128, 0)),
], False)
sketch19.addConstraint([
    Sketcher.Constraint("Coincident", 0, 2, 1, 1),
    Sketcher.Constraint("Coincident", 1, 2, 2, 1),
    Sketcher.Constraint("Coincident", 2, 2, 3, 1),
    Sketcher.Constraint("Coincident", 3, 2, 0, 1),
    Sketcher.Constraint("Vertical", 0),
    Sketcher.Constraint("Horizontal", 1),
    Sketcher.Constraint("Vertical", 2),
    Sketcher.Constraint("Horizontal", 3),
    Sketcher.Constraint("DistanceX", 1, 2, 1, 1, Q("72 in")),
    Sketcher.Constraint("DistanceY", 0, 2, 0, 1, Q("48 in")),
    Sketcher.Constraint("DistanceX", -1, 1, 0, 2, Q("0.75 in")),
    Sketcher.Constraint("DistanceY", 0, 2, -1, 1, 91.015164),
])
pad19 = body26.newObject("PartDesign::Pad", "Pad018")
pad19.Profile = sketch19
pad19.Length = Q("0.25 in")
body27 = doc.addObject("PartDesign::Body", "Body026")

sketch20 = body27.newObject("Sketcher::SketchObject", "Sketch019")
sketch20.AttachmentSupport = (doc.getObject("XZ_Plane026"), [""])
sketch20.MapMode = "FlatFace"
sketch20.AttachmentOffset = App.Placement(App.Vector(0, 0, 49.50887), App.Rotation())
sketch20.addGeometry([
    Part.LineSegment(App.Vector(19, -294, 0), App.Vector(19, -91, 0)),
    Part.LineSegment(App.Vector(19, -91, 0), App.Vector(-44, -91, 0)),
    Part.LineSegment(App.Vector(-44, -91, 0), App.Vector(-44, -167, 0)),
    Part.LineSegment(App.Vector(-44, -167, 0), App.Vector(-19, -294, 0)),
    Part.LineSegment(App.Vector(-19, -294, 0), App.Vector(19, -294, 0)),
], False)
sketch20.addConstraint([
    Sketcher.Constraint("Coincident", 0, 2, 1, 1),
    Sketcher.Constraint("Coincident", 1, 2, 2, 1),
    Sketcher.Constraint("Coincident", 2, 2, 3, 1),
    Sketcher.Constraint("Coincident", 3, 2, 4, 1),
    Sketcher.Constraint("Coincident", 4, 2, 0, 1),
    Sketcher.Constraint("Vertical", 0),
    Sketcher.Constraint("Horizontal", 1),
    Sketcher.Constraint("Vertical", 2),
    Sketcher.Constraint("Horizontal", 4),
    Sketcher.Constraint("DistanceY", 0, 1, 0, 2, Q("8 in")),
    Sketcher.Constraint("DistanceY", 2, 2, 2, 1, Q("3 in")),
    Sketcher.Constraint("DistanceX", 1, 2, 1, 1, Q("2.5 in")),
    Sketcher.Constraint("DistanceX", 4, 1, 4, 2, Q("1.5 in")),
    Sketcher.Constraint("DistanceX", -1, 1, 0, 2, Q("0.75 in")),
    Sketcher.Constraint("DistanceY", 0, 2, -1, 1, 91.015164),
])
pad20 = body27.newObject("PartDesign::Pad", "Pad019")
pad20.Profile = sketch20
pad20.Length = Q("2.5 in")
pad20.Reversed = True
body28 = doc.addObject("PartDesign::Body", "Body027")
doc.recompute()

mirroring8 = doc.addObject("Part::Mirroring", "Mirroring007")
mirroring8.Source = body27
mirroring8.Base = App.Vector(-895.35, 274.34113, 518.584836)
mirroring8.Normal = App.Vector(1, 0, 0)
body28.BaseFeature = mirroring8
doc.recompute()
body29 = doc.addObject("PartDesign::Body", "Body028")
doc.recompute()

mirroring9 = doc.addObject("Part::Mirroring", "Mirroring008")
mirroring9.Source = body28
mirroring9.Base = App.Vector(-895.35, 264.18113, 1118.659836)
mirroring9.Normal = App.Vector(0, 1, 0)
body29.BaseFeature = mirroring9
doc.recompute()
body30 = doc.addObject("PartDesign::Body", "Body029")
doc.recompute()

mirroring10 = doc.addObject("Part::Mirroring", "Mirroring009")
mirroring10.Source = body27
mirroring10.Base = App.Vector(-895.35, 264.18113, 1118.659836)
mirroring10.Normal = App.Vector(0, 1, 0)
body30.BaseFeature = mirroring10
doc.recompute()

doc.recompute()
